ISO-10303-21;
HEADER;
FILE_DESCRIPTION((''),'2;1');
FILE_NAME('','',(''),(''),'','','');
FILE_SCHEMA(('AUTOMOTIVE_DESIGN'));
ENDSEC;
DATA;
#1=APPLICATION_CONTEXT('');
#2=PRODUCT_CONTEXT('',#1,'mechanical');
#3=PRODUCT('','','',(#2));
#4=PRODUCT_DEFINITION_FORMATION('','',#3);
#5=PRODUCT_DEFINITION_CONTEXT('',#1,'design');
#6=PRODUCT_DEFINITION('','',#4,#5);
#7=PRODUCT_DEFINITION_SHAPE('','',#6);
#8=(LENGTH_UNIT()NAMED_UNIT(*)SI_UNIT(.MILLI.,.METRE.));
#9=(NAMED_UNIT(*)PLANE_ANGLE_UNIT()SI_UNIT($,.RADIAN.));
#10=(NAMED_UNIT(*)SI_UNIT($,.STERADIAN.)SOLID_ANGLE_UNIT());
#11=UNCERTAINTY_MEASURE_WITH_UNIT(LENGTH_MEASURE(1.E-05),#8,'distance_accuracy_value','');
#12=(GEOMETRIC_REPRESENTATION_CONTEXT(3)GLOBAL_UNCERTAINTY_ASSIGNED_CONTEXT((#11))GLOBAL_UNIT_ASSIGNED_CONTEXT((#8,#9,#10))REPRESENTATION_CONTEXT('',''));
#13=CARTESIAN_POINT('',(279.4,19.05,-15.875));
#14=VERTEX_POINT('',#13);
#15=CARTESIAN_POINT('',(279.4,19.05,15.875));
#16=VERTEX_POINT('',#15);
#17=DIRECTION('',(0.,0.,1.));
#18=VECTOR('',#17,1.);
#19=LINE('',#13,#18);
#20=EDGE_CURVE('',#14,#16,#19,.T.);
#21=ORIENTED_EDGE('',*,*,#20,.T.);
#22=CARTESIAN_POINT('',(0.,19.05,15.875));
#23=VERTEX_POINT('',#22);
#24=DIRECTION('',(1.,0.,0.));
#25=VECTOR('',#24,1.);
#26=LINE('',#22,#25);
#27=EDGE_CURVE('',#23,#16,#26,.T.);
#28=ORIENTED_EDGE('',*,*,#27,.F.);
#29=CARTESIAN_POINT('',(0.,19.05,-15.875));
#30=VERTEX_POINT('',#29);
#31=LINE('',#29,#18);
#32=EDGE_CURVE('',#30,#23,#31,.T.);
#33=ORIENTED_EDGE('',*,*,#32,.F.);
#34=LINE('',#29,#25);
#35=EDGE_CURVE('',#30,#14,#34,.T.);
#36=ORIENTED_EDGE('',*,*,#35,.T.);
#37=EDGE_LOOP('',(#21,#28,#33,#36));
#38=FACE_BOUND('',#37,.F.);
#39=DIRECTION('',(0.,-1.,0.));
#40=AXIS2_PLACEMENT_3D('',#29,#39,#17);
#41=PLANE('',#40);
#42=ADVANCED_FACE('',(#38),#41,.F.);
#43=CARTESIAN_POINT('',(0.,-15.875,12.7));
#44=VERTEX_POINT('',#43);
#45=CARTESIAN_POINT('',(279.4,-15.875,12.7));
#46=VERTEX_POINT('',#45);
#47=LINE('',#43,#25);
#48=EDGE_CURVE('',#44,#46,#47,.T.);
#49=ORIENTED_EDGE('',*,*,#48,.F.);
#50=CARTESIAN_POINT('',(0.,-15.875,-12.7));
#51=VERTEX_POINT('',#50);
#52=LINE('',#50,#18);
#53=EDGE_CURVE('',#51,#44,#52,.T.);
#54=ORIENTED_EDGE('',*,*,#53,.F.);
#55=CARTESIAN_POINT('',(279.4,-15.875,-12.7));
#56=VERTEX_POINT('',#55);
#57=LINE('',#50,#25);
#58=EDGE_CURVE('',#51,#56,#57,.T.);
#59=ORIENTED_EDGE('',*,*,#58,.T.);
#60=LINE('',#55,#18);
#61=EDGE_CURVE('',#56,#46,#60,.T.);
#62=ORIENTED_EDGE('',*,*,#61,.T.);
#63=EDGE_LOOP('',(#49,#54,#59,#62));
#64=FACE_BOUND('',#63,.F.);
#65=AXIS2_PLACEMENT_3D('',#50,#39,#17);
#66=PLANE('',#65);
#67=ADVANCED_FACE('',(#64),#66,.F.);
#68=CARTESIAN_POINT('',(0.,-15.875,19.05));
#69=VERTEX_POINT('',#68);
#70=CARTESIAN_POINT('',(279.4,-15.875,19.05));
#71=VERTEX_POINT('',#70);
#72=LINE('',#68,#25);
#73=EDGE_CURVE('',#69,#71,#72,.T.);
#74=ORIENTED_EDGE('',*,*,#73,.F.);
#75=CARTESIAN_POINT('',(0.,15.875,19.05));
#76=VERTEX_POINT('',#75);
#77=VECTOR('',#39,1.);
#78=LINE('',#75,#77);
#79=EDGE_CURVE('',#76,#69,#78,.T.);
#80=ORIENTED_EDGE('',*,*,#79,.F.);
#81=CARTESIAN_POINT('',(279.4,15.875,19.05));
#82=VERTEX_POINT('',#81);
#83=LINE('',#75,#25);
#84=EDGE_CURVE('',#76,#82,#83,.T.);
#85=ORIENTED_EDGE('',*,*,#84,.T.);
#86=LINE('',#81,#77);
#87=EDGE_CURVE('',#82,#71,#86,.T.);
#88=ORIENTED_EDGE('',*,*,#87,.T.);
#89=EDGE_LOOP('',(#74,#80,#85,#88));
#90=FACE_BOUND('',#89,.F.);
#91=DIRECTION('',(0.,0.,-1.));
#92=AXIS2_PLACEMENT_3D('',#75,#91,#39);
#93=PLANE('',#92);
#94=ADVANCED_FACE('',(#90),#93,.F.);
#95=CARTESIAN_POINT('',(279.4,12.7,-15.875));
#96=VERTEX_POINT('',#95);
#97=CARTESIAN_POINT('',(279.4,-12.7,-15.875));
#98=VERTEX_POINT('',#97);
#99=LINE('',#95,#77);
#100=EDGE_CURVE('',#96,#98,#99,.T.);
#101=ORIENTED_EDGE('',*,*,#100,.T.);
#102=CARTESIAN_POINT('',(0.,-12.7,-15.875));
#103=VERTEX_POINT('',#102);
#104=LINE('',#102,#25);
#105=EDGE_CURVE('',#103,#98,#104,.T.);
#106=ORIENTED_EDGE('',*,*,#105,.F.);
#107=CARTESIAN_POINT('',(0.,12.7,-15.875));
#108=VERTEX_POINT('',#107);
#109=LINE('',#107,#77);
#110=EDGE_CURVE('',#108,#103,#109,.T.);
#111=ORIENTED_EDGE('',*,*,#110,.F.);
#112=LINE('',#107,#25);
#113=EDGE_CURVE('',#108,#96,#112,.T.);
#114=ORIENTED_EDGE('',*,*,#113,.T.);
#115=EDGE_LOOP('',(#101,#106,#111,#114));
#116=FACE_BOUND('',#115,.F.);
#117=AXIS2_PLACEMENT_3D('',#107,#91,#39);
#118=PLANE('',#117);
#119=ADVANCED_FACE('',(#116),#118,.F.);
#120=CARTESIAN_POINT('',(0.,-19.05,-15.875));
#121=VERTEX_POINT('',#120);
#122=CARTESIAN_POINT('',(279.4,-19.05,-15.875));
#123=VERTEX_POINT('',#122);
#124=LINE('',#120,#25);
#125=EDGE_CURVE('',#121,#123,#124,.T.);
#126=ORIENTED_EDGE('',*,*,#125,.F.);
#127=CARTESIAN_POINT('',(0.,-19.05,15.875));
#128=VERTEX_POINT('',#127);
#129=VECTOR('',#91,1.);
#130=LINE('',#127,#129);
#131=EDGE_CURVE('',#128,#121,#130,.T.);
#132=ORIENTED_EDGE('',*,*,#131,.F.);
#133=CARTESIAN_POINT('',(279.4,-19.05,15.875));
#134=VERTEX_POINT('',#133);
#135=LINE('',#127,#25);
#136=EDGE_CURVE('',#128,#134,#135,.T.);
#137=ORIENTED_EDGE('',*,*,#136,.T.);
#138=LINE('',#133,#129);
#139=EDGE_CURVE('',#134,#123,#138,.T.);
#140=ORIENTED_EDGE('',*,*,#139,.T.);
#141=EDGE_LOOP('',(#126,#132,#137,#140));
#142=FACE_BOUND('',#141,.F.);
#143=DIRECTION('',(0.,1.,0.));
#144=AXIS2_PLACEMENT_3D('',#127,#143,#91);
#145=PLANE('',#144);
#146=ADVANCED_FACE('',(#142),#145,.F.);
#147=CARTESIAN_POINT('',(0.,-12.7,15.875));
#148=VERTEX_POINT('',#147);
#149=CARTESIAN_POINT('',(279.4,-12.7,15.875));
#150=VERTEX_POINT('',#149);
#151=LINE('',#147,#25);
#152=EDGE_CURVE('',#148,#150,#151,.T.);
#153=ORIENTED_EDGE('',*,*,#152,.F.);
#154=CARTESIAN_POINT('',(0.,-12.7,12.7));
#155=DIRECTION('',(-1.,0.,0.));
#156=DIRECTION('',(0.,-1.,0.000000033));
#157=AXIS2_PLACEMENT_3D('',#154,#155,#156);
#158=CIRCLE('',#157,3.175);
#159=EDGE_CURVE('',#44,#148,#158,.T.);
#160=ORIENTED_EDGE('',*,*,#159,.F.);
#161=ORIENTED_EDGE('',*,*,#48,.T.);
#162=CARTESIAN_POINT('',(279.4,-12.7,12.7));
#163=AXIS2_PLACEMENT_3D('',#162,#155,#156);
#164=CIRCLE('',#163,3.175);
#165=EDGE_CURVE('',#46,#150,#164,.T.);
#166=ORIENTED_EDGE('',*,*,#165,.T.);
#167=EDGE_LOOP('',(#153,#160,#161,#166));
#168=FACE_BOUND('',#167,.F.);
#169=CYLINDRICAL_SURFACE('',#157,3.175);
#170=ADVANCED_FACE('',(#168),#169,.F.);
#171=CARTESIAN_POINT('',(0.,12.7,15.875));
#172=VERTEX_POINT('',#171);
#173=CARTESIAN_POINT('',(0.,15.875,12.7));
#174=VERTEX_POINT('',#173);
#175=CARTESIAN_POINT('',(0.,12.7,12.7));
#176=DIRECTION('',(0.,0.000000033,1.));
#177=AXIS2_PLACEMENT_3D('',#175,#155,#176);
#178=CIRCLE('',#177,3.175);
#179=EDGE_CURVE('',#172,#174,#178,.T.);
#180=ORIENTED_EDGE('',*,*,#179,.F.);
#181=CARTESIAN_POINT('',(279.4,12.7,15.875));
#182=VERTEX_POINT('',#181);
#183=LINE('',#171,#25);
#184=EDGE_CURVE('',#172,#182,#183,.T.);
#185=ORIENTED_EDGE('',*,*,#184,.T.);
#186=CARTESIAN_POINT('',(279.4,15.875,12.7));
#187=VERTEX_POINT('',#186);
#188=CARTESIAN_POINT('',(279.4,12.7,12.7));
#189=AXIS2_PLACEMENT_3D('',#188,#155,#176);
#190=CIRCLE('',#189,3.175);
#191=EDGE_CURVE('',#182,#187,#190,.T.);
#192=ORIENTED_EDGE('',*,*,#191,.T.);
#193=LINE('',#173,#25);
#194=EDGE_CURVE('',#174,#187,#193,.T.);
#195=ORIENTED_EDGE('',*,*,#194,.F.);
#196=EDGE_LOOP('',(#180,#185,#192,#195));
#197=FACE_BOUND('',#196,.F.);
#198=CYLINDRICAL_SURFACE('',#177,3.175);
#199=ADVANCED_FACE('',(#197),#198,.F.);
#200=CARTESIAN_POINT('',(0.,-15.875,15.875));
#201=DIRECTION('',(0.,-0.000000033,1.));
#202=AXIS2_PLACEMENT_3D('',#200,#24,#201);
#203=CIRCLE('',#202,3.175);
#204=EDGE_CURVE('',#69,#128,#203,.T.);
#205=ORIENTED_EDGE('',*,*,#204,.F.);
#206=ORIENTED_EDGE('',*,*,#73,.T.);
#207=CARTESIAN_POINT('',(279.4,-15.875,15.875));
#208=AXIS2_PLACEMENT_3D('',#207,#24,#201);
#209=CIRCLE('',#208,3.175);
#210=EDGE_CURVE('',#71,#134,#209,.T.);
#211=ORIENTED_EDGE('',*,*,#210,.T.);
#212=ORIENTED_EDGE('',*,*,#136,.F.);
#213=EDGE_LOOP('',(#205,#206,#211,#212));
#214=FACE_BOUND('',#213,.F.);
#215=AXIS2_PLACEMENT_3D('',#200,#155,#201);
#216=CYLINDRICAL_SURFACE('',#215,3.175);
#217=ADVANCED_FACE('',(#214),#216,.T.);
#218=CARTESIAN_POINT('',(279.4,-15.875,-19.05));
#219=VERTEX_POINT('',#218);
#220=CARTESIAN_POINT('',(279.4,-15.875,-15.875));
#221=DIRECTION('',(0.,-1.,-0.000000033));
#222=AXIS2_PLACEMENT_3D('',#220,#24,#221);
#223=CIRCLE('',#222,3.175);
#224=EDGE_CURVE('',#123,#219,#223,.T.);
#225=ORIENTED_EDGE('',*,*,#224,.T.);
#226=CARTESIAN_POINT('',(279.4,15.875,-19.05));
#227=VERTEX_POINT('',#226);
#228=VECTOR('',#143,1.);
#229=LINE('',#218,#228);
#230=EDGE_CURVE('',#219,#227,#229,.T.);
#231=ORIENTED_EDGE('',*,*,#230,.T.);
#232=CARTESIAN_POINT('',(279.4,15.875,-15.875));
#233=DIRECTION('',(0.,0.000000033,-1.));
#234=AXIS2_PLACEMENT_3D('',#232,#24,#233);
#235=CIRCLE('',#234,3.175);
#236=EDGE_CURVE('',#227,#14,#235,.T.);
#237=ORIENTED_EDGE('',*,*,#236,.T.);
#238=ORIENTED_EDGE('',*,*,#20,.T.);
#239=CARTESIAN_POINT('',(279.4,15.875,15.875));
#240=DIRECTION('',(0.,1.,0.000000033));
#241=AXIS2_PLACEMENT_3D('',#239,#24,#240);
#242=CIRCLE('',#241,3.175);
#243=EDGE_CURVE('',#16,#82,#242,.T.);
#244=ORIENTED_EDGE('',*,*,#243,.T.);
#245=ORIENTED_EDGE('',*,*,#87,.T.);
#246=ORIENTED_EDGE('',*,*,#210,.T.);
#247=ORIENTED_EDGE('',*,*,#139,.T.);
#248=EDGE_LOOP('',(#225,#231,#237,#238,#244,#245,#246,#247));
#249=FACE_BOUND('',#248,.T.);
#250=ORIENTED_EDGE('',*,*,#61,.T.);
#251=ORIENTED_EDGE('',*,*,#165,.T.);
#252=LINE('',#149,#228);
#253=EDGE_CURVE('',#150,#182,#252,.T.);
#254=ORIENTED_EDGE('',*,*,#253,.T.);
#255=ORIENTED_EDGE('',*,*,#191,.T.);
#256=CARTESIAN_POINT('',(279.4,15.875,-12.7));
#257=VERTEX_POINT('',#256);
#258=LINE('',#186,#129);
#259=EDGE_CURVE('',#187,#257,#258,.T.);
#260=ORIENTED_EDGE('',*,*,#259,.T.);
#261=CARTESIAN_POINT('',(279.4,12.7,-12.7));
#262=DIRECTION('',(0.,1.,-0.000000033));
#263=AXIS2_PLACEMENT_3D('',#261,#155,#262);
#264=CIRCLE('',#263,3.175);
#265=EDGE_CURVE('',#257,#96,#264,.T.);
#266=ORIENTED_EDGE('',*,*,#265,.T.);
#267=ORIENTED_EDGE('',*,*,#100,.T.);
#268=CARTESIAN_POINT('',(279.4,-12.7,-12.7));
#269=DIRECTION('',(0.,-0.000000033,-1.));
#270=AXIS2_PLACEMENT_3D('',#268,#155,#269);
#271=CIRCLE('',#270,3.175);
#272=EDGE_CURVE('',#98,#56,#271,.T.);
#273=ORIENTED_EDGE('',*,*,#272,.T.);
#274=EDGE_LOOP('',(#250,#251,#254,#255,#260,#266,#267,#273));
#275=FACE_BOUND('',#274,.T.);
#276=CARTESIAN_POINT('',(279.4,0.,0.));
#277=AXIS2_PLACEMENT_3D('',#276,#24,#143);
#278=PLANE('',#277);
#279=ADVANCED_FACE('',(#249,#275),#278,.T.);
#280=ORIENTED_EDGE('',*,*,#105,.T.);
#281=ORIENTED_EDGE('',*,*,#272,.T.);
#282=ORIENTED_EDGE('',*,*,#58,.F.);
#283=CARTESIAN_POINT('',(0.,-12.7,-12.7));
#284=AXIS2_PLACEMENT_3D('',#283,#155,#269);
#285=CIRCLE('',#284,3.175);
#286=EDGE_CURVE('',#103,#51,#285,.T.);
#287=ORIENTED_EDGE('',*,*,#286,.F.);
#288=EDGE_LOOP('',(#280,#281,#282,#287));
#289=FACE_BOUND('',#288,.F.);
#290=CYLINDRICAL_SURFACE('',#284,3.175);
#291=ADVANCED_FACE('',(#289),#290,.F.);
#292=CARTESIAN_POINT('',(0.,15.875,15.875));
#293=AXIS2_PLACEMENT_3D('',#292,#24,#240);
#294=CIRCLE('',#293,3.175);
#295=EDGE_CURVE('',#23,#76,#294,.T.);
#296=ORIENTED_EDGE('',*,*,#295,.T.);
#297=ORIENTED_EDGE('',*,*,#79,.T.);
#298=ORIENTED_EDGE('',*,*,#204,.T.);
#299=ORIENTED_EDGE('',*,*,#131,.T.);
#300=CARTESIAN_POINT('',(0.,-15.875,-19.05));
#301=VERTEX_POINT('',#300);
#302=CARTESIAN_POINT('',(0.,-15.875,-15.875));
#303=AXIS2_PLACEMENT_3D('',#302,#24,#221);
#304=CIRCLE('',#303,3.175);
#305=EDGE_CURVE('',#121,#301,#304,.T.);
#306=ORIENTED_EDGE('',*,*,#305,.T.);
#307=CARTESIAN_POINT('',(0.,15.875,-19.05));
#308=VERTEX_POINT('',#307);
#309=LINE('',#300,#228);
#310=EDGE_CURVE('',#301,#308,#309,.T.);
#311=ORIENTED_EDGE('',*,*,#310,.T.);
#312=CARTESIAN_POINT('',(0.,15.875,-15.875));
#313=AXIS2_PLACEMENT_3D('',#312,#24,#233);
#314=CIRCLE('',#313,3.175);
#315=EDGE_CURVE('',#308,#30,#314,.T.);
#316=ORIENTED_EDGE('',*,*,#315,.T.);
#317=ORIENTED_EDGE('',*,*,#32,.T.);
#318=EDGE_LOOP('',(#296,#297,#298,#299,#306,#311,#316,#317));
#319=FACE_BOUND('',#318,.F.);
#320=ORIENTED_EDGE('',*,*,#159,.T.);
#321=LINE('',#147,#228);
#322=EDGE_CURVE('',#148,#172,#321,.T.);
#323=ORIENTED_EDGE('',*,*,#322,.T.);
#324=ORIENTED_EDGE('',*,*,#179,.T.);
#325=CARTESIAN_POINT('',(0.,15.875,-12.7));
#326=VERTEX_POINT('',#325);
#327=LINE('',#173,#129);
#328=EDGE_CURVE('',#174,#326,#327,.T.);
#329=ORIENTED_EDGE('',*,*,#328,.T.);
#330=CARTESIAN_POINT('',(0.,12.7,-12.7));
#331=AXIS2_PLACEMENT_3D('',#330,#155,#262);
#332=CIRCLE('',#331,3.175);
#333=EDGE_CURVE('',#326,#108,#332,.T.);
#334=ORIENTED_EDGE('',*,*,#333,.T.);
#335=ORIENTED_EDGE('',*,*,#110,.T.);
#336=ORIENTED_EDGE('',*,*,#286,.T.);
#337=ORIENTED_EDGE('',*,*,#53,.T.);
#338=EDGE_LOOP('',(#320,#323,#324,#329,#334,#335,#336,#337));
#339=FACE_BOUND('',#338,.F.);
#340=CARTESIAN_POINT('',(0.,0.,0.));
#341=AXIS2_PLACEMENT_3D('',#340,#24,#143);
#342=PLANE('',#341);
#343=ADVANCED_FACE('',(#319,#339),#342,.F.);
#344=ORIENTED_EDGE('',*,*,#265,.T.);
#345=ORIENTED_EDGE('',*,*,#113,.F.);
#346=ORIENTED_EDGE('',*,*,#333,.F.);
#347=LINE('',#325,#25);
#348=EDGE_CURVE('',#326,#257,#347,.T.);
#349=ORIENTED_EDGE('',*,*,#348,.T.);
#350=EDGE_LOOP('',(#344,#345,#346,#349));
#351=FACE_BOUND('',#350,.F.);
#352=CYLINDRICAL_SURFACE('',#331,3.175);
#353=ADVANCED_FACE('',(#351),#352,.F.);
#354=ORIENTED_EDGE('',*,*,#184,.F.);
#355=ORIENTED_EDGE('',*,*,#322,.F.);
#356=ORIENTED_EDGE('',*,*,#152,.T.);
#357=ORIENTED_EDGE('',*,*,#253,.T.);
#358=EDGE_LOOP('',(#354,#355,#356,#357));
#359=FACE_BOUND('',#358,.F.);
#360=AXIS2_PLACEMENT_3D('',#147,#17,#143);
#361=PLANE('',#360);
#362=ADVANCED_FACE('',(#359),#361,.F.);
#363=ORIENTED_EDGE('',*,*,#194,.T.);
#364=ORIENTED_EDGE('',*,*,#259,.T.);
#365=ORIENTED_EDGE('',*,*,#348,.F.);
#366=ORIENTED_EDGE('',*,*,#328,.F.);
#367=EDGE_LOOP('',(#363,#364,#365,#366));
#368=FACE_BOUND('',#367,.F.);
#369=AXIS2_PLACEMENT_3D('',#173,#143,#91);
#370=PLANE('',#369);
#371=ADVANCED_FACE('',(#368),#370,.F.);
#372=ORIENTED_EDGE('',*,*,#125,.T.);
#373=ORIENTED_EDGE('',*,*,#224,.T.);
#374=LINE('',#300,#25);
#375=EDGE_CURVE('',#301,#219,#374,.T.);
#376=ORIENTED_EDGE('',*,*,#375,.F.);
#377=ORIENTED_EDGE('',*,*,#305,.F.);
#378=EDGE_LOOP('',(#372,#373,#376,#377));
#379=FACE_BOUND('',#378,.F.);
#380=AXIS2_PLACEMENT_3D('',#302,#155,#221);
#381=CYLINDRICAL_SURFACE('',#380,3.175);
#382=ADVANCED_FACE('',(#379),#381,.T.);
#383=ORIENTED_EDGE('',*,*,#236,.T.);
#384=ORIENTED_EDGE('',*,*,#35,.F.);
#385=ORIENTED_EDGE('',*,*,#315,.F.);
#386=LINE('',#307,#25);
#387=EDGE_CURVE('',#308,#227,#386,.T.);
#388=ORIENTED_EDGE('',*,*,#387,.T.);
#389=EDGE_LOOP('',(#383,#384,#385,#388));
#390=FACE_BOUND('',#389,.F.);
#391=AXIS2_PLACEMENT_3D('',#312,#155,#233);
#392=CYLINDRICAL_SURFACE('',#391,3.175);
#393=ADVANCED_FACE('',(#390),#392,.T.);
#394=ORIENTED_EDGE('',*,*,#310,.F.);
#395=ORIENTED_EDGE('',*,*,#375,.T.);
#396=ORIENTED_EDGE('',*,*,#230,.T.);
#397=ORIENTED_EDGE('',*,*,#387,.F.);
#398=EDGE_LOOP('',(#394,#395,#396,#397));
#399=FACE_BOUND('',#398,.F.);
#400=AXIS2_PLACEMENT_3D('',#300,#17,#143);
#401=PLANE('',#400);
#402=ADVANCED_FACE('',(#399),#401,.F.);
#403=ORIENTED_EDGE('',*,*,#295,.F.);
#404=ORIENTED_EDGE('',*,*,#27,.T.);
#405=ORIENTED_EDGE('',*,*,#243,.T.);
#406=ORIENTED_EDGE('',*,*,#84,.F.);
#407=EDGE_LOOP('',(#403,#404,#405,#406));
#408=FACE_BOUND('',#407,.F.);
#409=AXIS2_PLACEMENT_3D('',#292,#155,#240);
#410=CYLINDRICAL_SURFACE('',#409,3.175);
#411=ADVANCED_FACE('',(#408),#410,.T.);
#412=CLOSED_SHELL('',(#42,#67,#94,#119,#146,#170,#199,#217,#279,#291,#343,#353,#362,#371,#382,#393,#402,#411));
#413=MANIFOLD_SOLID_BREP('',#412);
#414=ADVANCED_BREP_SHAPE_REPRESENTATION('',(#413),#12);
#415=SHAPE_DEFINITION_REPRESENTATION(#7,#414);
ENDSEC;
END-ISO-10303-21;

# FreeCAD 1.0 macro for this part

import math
import FreeCAD as App
import Part
import Sketcher
Q = App.Units.Quantity

doc = App.newDocument("Part")
params = doc.addObject("Spreadsheet::Sheet", "Params")
for row, (alias, value) in enumerate([
    ("sketch1_width", "1 in"),
    ("sketch1_radius", "0.125 in"),
    ("pad1_length", "11 in"),
], start=1):
    params.set(f"A{row}", alias)
    params.set(f"B{row}", "=" + value)
    params.setAlias(f"B{row}", alias)

body = doc.addObject("PartDesign::Body", "Body")

sketch1 = doc.addObject("Sketcher::SketchObject", "Sketch")
body.addObject(sketch1)
sketch1.AttachmentSupport = (doc.YZ_Plane, [""])
sketch1.MapMode = "FlatFace"
sketch1.addGeometry([
    Part.ArcOfCircle(Part.Circle(App.Vector(15.875, 15.875, 0), App.Vector(0, 0, 1), 3.175), math.radians(0.000002), math.radians(89.999998)),
    Part.LineSegment(App.Vector(15.875, 19.05, 0), App.Vector(-15.875, 19.05, 0)),
    Part.ArcOfCircle(Part.Circle(App.Vector(-15.875, 15.875, 0), App.Vector(0, 0, 1), 3.175), math.radians(90.000002), math.radians(179.999998)),
    Part.LineSegment(App.Vector(-19.05, 15.875, 0), App.Vector(-19.05, -15.875, 0)),
    Part.ArcOfCircle(Part.Circle(App.Vector(-15.875, -15.875, 0), App.Vector(0, 0, 1), 3.175), math.radians(-179.999998), math.radians(-90.000002)),
    Part.LineSegment(App.Vector(-15.875, -19.05, 0), App.Vector(15.875, -19.05, 0)),
    Part.ArcOfCircle(Part.Circle(App.Vector(15.875, -15.875, 0), App.Vector(0, 0, 1), 3.175), math.radians(-89.999998), math.radians(-0.000002)),
    Part.LineSegment(App.Vector(19.05, -15.875, 0), App.Vector(19.05, 15.875, 0)),
    Part.ArcOfCircle(Part.Circle(App.Vector(-12.7, 12.7, 0), App.Vector(0, 0, 1), 3.175), math.radians(90.000002), math.radians(179.999998)),
    Part.LineSegment(App.Vector(-12.7, 15.875, 0), App.Vector(12.7, 15.875, 0)),
    Part.ArcOfCircle(Part.Circle(App.Vector(12.7, 12.7, 0), App.Vector(0, 0, 1), 3.175), math.radians(0.000002), math.radians(89.999998)),
    Part.LineSegment(App.Vector(15.875, 12.7, 0), App.Vector(15.875, -12.7, 0)),
    Part.ArcOfCircle(Part.Circle(App.Vector(12.7, -12.7, 0), App.Vector(0, 0, 1), 3.175), math.radians(-89.999998), math.radians(-0.000002)),
    Part.LineSegment(App.Vector(12.7, -15.875, 0), App.Vector(-12.7, -15.875, 0)),
    Part.ArcOfCircle(Part.Circle(App.Vector(-12.7, -12.7, 0), App.Vector(0, 0, 1), 3.175), math.radians(-179.999998), math.radians(-90.000002)),
    Part.LineSegment(App.Vector(-15.875, -12.7, 0), App.Vector(-15.875, 12.7, 0)),
], False)
sketch1.addConstraint([
    Sketcher.Constraint("Tangent", 0, 2, 1, 1),
    Sketcher.Constraint("Tangent", 1, 2, 2, 1),
    Sketcher.Constraint("Tangent", 2, 2, 3, 1),
    Sketcher.Constraint("Tangent", 3, 2, 4, 1),
    Sketcher.Constraint("Tangent", 4, 2, 5, 1),
    Sketcher.Constraint("Tangent", 5, 2, 6, 1),
    Sketcher.Constraint("Tangent", 6, 2, 7, 1),
    Sketcher.Constraint("Tangent", 7, 2, 0, 1),
    Sketcher.Constraint("Tangent", 8, 1, 9, 1),
    Sketcher.Constraint("Tangent", 9, 2, 10, 2),
    Sketcher.Constraint("Tangent", 10, 1, 11, 1),
    Sketcher.Constraint("Tangent", 11, 2, 12, 2),
    Sketcher.Constraint("Tangent", 12, 1, 13, 1),
    Sketcher.Constraint("Tangent", 13, 2, 14, 2),
    Sketcher.Constraint("Tangent", 14, 1, 15, 1),
    Sketcher.Constraint("Tangent", 15, 2, 8, 2),
    Sketcher.Constraint("Horizontal", 1),
    Sketcher.Constraint("Vertical", 3),
    Sketcher.Constraint("Horizontal", 5),
    Sketcher.Constraint("Vertical", 7),
    Sketcher.Constraint("Horizontal", 9),
    Sketcher.Constraint("Vertical", 11),
    Sketcher.Constraint("Horizontal", 13),
    Sketcher.Constraint("Vertical", 15),
    Sketcher.Constraint("Equal", 0, 2),
    Sketcher.Constraint("Equal", 2, 4),
    Sketcher.Constraint("Equal", 4, 6),
    Sketcher.Constraint("Equal", 6, 8),
    Sketcher.Constraint("Equal", 8, 10),
    Sketcher.Constraint("Equal", 10, 12),
    Sketcher.Constraint("Equal", 12, 14),
    Sketcher.Constraint("Symmetric", 0, 3, 4, 3, -1, 1),
    Sketcher.Constraint("Symmetric", 8, 3, 12, 3, -1, 1),
    Sketcher.Constraint("Horizontal", 7, 2, 8, 1),
    Sketcher.Constraint("Vertical", 5, 2, 10, 1),
    Sketcher.Constraint("Equal", 5, 3),
    Sketcher.Constraint("DistanceX", 9, 1, 9, 2, Q("1 in")),
    Sketcher.Constraint("Radius", 0, Q("0.125 in")),
])
sketch1.setExpression("Constraints[36]", "Params.sketch1_width")
sketch1.setExpression("Constraints[37]", "Params.sketch1_radius")
pad1 = doc.addObject("PartDesign::Pad", "Pad")
body.addObject(pad1)
pad1.Profile = sketch1
pad1.setExpression("Length", "Params.pad1_length")

doc.recompute()
